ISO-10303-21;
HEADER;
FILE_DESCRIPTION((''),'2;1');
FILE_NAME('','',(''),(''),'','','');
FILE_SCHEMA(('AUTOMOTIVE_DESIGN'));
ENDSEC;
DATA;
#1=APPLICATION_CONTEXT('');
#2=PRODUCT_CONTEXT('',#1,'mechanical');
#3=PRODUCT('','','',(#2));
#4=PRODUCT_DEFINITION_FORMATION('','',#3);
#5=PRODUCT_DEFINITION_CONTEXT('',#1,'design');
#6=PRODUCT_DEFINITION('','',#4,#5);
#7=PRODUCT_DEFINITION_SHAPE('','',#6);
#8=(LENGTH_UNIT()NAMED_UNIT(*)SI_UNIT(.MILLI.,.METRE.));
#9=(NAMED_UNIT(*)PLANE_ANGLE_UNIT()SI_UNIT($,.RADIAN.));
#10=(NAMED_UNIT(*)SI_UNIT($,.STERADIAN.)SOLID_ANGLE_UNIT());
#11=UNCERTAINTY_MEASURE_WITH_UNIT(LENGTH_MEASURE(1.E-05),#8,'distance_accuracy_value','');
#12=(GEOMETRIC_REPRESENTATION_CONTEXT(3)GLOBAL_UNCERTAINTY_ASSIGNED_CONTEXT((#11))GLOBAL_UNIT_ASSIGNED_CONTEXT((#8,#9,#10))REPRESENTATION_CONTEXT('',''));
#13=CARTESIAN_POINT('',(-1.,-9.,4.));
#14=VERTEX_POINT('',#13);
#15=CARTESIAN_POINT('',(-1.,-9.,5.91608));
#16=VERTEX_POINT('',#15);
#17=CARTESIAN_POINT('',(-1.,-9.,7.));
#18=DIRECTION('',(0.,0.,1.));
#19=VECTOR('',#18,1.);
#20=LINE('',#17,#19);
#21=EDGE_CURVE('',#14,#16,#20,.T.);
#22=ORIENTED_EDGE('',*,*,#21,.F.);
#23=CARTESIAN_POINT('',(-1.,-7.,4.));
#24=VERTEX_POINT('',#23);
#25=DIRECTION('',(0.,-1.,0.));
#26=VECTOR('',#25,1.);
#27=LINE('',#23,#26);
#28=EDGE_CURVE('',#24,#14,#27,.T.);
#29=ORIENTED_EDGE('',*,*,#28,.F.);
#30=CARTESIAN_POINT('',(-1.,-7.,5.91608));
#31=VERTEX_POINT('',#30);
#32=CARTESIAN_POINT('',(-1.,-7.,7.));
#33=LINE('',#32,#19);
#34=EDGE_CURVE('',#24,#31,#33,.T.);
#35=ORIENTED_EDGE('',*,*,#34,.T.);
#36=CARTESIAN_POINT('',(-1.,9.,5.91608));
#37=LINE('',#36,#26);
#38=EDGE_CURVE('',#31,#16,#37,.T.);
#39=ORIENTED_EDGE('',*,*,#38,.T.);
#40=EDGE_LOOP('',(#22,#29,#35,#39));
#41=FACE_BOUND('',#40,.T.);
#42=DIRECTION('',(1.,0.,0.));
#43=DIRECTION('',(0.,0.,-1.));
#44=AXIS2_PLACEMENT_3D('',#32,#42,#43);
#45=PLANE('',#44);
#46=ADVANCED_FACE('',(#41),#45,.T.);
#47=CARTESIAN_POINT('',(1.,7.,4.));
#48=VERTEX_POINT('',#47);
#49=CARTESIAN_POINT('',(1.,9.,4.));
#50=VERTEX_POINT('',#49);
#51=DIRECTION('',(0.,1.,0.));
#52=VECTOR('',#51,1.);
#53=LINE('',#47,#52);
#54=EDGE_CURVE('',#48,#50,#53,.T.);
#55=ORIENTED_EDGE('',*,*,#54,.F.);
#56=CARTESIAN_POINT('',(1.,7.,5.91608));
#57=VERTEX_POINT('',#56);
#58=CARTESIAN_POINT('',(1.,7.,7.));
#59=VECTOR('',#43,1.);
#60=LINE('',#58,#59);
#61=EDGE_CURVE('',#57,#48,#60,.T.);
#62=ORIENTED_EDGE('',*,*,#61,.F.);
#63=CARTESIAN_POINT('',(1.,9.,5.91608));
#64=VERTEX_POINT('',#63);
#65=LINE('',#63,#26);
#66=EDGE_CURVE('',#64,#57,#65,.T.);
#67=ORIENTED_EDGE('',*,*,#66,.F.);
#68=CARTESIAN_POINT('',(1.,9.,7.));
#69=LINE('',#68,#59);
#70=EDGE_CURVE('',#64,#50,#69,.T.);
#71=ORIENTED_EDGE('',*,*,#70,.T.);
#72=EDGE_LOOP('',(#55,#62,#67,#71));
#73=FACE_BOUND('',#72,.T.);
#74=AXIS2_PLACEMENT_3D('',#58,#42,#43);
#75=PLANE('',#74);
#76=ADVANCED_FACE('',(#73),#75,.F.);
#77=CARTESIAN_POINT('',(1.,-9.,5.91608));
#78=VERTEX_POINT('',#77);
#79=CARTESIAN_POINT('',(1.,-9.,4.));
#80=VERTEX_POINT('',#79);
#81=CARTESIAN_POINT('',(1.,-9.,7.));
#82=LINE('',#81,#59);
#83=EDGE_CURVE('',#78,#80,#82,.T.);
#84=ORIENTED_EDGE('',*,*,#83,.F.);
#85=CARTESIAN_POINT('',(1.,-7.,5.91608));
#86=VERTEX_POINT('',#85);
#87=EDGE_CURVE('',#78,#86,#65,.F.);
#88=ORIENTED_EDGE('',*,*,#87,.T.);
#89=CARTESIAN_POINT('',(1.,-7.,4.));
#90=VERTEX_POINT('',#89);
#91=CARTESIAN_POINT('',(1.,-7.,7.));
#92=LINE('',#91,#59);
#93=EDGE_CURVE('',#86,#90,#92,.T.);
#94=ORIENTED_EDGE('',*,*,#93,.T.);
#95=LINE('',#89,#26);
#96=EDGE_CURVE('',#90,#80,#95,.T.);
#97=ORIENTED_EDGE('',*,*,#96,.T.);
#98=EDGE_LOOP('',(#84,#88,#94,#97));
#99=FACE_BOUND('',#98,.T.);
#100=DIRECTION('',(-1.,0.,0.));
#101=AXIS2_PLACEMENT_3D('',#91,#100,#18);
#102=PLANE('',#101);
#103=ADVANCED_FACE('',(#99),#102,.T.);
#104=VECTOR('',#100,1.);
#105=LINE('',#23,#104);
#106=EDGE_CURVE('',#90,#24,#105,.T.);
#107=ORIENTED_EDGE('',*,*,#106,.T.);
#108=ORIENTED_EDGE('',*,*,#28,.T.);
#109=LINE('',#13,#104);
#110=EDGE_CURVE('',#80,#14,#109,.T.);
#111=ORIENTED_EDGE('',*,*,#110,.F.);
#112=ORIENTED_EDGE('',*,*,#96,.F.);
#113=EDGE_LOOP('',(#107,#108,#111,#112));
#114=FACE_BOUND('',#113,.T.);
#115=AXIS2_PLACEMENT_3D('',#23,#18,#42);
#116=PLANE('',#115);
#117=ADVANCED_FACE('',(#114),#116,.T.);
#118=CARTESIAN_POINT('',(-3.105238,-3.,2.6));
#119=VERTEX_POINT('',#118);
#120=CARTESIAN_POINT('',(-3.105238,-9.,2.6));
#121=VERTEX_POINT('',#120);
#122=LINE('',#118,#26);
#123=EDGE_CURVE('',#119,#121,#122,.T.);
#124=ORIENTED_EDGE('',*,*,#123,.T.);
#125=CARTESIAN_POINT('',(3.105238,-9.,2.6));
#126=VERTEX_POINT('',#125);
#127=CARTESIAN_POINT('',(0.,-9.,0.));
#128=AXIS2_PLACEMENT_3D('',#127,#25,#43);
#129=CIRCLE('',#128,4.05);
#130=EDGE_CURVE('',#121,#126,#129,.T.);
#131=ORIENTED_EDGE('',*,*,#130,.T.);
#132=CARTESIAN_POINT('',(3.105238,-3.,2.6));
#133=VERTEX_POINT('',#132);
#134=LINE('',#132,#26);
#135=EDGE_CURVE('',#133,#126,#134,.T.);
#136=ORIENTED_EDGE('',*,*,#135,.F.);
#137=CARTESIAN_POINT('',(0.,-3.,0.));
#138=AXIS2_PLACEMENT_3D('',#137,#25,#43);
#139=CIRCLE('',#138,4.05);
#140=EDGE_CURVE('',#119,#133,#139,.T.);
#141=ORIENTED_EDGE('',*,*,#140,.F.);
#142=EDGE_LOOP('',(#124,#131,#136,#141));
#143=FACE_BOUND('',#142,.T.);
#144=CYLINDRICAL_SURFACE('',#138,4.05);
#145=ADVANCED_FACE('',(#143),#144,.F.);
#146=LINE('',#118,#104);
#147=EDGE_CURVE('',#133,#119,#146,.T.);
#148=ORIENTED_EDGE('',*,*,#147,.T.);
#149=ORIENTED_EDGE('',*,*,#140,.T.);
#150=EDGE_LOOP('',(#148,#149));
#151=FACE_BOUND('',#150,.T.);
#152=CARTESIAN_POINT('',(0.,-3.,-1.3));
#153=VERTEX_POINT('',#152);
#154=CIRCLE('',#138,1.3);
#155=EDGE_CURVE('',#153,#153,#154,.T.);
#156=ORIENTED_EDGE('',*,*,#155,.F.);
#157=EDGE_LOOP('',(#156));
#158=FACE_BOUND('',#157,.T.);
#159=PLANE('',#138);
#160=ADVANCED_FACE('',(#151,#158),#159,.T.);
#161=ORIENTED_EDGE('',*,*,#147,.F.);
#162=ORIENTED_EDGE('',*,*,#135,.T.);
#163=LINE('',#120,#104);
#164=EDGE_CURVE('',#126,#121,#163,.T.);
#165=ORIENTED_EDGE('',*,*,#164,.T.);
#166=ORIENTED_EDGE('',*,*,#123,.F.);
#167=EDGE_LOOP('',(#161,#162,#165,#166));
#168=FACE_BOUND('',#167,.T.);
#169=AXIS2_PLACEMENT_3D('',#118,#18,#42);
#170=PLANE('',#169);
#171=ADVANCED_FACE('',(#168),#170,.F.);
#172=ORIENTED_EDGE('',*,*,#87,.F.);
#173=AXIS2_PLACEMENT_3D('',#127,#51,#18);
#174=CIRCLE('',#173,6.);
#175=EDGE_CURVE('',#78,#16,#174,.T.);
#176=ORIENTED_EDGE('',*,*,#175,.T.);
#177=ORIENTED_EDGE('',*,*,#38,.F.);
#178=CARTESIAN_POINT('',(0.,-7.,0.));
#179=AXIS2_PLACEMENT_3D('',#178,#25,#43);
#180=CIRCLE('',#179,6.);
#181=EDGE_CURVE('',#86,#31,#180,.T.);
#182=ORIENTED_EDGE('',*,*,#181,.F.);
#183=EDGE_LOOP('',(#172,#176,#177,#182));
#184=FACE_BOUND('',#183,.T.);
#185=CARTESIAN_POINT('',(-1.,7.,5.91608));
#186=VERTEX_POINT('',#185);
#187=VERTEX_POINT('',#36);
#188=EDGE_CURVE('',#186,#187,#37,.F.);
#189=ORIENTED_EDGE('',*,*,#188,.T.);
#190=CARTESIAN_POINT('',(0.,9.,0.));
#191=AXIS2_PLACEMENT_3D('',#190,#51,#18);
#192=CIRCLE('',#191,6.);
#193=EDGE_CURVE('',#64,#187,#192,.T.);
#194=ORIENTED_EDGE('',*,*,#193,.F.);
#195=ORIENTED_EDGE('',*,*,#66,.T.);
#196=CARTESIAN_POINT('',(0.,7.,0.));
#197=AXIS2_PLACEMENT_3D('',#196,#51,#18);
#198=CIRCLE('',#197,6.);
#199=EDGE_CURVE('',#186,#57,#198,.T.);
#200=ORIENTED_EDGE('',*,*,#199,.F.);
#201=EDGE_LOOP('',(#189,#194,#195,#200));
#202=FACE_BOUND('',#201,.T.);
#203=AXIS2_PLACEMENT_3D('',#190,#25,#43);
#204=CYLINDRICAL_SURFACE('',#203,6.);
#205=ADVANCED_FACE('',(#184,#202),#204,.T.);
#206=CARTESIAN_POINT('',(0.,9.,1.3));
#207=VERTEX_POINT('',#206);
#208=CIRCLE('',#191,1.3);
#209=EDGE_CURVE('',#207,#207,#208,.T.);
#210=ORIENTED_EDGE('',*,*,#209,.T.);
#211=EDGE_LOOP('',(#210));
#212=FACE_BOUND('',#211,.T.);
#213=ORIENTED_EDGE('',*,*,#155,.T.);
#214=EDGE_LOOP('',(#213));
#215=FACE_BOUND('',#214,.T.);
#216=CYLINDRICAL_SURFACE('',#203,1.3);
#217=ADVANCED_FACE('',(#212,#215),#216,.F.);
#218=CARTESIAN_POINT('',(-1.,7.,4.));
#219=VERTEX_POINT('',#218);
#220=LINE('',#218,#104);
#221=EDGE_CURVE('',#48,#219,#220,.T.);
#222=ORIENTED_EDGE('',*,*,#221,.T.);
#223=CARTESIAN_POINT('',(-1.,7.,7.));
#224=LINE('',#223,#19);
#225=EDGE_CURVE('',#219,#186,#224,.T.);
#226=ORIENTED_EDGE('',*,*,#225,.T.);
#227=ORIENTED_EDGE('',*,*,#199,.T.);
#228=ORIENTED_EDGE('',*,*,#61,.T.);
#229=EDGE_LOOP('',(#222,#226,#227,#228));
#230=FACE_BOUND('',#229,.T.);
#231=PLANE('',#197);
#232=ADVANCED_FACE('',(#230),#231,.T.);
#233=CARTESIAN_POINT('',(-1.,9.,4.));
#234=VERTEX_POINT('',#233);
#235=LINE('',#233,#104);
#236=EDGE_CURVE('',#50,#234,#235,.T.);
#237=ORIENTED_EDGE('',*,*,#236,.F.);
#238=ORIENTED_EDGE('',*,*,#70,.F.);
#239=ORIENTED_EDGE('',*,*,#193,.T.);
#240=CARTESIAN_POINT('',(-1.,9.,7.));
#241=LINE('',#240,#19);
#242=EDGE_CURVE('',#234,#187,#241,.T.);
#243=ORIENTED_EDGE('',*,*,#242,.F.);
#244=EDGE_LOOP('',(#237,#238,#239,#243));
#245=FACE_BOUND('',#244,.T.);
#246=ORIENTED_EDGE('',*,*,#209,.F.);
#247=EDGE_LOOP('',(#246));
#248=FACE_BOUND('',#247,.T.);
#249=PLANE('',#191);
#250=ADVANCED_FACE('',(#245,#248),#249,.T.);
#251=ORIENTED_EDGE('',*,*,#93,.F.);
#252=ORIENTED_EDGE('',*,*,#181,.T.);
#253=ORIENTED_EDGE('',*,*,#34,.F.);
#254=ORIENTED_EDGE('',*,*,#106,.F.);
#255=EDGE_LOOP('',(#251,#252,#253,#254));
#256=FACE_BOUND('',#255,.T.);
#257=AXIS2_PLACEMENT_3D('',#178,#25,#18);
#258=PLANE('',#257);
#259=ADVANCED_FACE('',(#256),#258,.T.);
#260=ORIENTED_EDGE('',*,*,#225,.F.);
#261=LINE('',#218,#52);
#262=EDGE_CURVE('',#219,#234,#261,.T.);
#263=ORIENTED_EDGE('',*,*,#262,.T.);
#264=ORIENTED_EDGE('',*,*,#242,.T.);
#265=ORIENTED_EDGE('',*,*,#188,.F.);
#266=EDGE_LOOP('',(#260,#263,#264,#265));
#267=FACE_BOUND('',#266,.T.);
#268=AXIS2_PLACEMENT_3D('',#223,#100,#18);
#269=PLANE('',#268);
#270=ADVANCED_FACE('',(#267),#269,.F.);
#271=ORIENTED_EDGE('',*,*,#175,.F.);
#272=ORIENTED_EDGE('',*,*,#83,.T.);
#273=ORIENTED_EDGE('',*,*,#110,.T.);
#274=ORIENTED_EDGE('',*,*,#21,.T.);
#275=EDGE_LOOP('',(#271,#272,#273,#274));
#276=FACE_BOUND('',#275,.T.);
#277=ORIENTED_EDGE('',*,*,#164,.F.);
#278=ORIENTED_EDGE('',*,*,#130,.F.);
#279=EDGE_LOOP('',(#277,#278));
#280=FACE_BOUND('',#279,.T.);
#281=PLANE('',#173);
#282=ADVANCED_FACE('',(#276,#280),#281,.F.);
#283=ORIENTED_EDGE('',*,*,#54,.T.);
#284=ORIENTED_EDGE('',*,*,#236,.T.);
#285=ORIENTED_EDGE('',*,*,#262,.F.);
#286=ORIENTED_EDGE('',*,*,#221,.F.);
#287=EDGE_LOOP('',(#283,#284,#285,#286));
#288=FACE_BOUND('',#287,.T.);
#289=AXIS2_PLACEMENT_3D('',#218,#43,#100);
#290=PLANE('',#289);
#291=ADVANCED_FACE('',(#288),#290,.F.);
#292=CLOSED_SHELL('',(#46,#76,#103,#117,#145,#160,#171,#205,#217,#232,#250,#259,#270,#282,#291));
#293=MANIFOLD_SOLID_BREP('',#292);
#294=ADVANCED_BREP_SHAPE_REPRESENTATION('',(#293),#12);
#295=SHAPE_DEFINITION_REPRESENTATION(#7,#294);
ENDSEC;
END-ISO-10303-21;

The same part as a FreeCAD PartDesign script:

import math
import FreeCAD as App
import Part
import Sketcher

doc = App.newDocument("Part")
params = doc.addObject("Spreadsheet::Sheet", "Params")
for row, (alias, value) in enumerate([
    ("sketch1_diameter", "12 mm"),
    ("sketch1_diameter2", "2.6 mm"),
    ("pad1_length", "18 mm"),
    ("sketch2_radius", "4.05 mm"),
    ("pocket1_length", "6 mm"),
    ("sketch3_width", "2 mm"),
    ("sketch3_height", "3 mm"),
    ("pocket2_length", "2 mm"),
], start=1):
    params.set(f"A{row}", alias)
    params.set(f"B{row}", "=" + value)
    params.setAlias(f"B{row}", alias)

body = doc.addObject("PartDesign::Body", "Body")

sketch1 = doc.addObject("Sketcher::SketchObject", "Sketch")
body.addObject(sketch1)
sketch1.AttachmentSupport = (doc.XZ_Plane, [""])
sketch1.MapMode = "FlatFace"
sketch1.addGeometry(Part.Circle(App.Vector(0, 0, 0), App.Vector(0, 0, 1), 6), False)
sketch1.addGeometry(Part.Circle(App.Vector(0, 0, 0), App.Vector(0, 0, 1), 1.3), False)
sketch1.addConstraint(Sketcher.Constraint("Coincident", 0, 3, -1, 1))
sketch1.addConstraint(Sketcher.Constraint("Coincident", 1, 3, -1, 1))
sketch1.addConstraint(Sketcher.Constraint("Diameter", 0, 12.0))
sketch1.addConstraint(Sketcher.Constraint("Diameter", 1, 2.6))
sketch1.setExpression("Constraints[2]", "Params.sketch1_diameter")
sketch1.setExpression("Constraints[3]", "Params.sketch1_diameter2")
pad1 = doc.addObject("PartDesign::Pad", "Pad")
body.addObject(pad1)
pad1.Profile = sketch1
pad1.setExpression("Length", "Params.pad1_length")
pad1.Midplane = True

sketch2 = doc.addObject("Sketcher::SketchObject", "Sketch001")
body.addObject(sketch2)
sketch2.AttachmentSupport = (doc.XZ_Plane, [""])
sketch2.MapMode = "FlatFace"
sketch2.AttachmentOffset = App.Placement(App.Vector(0, 0, 9), App.Rotation())
sketch2.addGeometry(Part.LineSegment(App.Vector(3.1, 2.6, 0), App.Vector(-3.1, 2.6, 0)), False)
sketch2.addGeometry(Part.ArcOfCircle(Part.Circle(App.Vector(0, 0, 0), App.Vector(0, 0, 1), 4), math.radians(140), math.radians(400)), False)
sketch2.addConstraint(Sketcher.Constraint("Coincident", 0, 1, 1, 2))
sketch2.addConstraint(Sketcher.Constraint("Coincident", 1, 1, 0, 2))
sketch2.addConstraint(Sketcher.Constraint("Horizontal", 0))
sketch2.addConstraint(Sketcher.Constraint("Coincident", 1, 3, -1, 1))
sketch2.addConstraint(Sketcher.Constraint("Radius", 1, 4.05))
sketch2.addConstraint(Sketcher.Constraint("DistanceY", -1, 1, 0, 1, 2.6))
sketch2.setExpression("Constraints[4]", "Params.sketch2_radius")
pocket1 = doc.addObject("PartDesign::Pocket", "Pocket")
body.addObject(pocket1)
pocket1.Profile = sketch2
pocket1.setExpression("Length", "Params.pocket1_length")

sketch3 = doc.addObject("Sketcher::SketchObject", "Sketch002")
body.addObject(sketch3)
sketch3.AttachmentSupport = (doc.XZ_Plane, [""])
sketch3.MapMode = "FlatFace"
sketch3.AttachmentOffset = App.Placement(App.Vector(0, 0, -9), App.Rotation())
sketch3.addGeometry(Part.LineSegment(App.Vector(-1, 4, 0), App.Vector(-1, 7, 0)), False)
sketch3.addGeometry(Part.LineSegment(App.Vector(-1, 7, 0), App.Vector(1, 7, 0)), False)
sketch3.addGeometry(Part.LineSegment(App.Vector(1, 7, 0), App.Vector(1, 4, 0)), False)
sketch3.addGeometry(Part.LineSegment(App.Vector(1, 4, 0), App.Vector(-1, 4, 0)), False)
sketch3.addConstraint(Sketcher.Constraint("Coincident", 0, 2, 1, 1))
sketch3.addConstraint(Sketcher.Constraint("Coincident", 1, 2, 2, 1))
sketch3.addConstraint(Sketcher.Constraint("Coincident", 2, 2, 3, 1))
sketch3.addConstraint(Sketcher.Constraint("Coincident", 3, 2, 0, 1))
sketch3.addConstraint(Sketcher.Constraint("Vertical", 0))
sketch3.addConstraint(Sketcher.Constraint("Horizontal", 1))
sketch3.addConstraint(Sketcher.Constraint("Vertical", 2))
sketch3.addConstraint(Sketcher.Constraint("Horizontal", 3))
sketch3.addConstraint(Sketcher.Constraint("DistanceX", 1, 1, 1, 2, 2.0))
sketch3.addConstraint(Sketcher.Constraint("DistanceY", 0, 1, 0, 2, 3.0))
sketch3.addConstraint(Sketcher.Constraint("DistanceX", 0, 2, -1, 1, 1.0))
sketch3.addConstraint(Sketcher.Constraint("DistanceY", -1, 1, 0, 2, 7.0))
sketch3.setExpression("Constraints[8]", "Params.sketch3_width")
sketch3.setExpression("Constraints[9]", "Params.sketch3_height")
pocket2 = doc.addObject("PartDesign::Pocket", "Pocket001")
body.addObject(pocket2)
pocket2.Profile = sketch3
pocket2.setExpression("Length", "Params.pocket2_length")
pocket2.Reversed = True
doc.recompute()

mirrored = doc.addObject("PartDesign::Mirrored", "Mirrored")
body.addObject(mirrored)
mirrored.Originals = [pocket2]
mirrored.MirrorPlane = (doc.XZ_Plane, [""])
body.Tip = mirrored

doc.recompute()
